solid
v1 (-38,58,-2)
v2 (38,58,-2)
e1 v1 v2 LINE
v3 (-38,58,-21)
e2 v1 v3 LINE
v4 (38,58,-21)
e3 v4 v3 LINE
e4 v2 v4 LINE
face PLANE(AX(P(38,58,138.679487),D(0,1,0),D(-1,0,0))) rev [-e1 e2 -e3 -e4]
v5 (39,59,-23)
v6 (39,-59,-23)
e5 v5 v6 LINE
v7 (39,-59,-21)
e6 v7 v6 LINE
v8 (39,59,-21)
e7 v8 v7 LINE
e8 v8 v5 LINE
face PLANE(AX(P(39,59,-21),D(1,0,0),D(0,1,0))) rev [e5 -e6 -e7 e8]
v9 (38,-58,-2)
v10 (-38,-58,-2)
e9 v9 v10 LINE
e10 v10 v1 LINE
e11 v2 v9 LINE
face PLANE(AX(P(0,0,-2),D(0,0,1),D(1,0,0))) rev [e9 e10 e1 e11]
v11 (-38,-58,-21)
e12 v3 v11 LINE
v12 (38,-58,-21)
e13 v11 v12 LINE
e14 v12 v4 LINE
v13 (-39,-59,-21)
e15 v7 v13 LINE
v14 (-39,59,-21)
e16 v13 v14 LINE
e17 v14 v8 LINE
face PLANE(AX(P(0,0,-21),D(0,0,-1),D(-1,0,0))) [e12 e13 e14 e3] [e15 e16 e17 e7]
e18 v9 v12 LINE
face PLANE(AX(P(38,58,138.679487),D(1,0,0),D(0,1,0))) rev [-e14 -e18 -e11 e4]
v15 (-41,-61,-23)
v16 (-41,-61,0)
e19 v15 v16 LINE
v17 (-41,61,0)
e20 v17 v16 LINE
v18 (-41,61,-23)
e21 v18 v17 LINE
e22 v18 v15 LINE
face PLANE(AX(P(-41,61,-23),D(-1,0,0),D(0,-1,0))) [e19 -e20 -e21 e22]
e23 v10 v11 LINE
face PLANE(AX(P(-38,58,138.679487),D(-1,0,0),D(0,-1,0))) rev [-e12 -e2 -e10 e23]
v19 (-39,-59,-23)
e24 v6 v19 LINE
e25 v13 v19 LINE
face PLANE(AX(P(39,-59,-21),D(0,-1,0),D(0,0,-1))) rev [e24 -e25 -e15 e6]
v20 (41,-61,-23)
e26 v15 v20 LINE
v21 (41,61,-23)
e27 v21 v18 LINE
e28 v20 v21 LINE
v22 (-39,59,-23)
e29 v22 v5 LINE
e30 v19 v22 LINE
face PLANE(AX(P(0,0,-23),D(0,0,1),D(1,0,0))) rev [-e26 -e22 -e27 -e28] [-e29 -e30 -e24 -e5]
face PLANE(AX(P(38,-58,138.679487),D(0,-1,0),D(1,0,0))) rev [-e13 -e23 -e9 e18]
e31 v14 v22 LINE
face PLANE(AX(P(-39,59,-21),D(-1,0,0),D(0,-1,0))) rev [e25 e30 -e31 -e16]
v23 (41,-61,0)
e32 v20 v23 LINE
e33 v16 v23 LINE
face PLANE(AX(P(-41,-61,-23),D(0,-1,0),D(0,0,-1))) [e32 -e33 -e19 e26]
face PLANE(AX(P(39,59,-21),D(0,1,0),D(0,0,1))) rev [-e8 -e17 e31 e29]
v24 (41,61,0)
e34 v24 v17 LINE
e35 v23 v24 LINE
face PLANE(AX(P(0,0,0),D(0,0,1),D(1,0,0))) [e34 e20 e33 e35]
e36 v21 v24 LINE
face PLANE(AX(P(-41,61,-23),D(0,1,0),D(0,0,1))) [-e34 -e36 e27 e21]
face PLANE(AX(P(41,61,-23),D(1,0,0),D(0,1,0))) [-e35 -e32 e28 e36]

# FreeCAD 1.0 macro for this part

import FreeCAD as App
import Part
import Sketcher
from FreeCAD import Vector
Q = App.Units.Quantity

doc = App.newDocument("Part")
body = doc.addObject("PartDesign::Body", "Body")

# Sketch on XY plane
sketch1 = doc.addObject("Sketcher::SketchObject", "Sketch")
body.addObject(sketch1)
sketch1.AttachmentSupport = (doc.XY_Plane, [""])
sketch1.MapMode = "FlatFace"
sketch1.addGeometry([
    Part.LineSegment(Vector(-41, 61, 0), Vector(-41, -61, 0)),
    Part.LineSegment(Vector(-41, -61, 0), Vector(41, -61, 0)),
    Part.LineSegment(Vector(41, -61, 0), Vector(41, 61, 0)),
    Part.LineSegment(Vector(41, 61, 0), Vector(-41, 61, 0)),
], False)
sketch1.addConstraint([
    Sketcher.Constraint("Coincident", 0, 2, 1, 1),
    Sketcher.Constraint("Coincident", 1, 2, 2, 1),
    Sketcher.Constraint("Coincident", 2, 2, 3, 1),
    Sketcher.Constraint("Coincident", 3, 2, 0, 1),
    Sketcher.Constraint("Vertical", 0),
    Sketcher.Constraint("Horizontal", 1),
    Sketcher.Constraint("Vertical", 2),
    Sketcher.Constraint("Horizontal", 3),
    Sketcher.Constraint("Symmetric", 0, 2, 2, 2, -1, 1),
    Sketcher.Constraint("DistanceX", 1, 1, 1, 2, Q("82 mm")),
    Sketcher.Constraint("DistanceY", 0, 2, 0, 1, Q("122 mm")),
])
pad1 = doc.addObject("PartDesign::Pad", "Pad")
body.addObject(pad1)
pad1.Profile = sketch1
pad1.Length = 23
pad1.Reversed = True

# Sketch on XY plane
sketch2 = doc.addObject("Sketcher::SketchObject", "Sketch001")
body.addObject(sketch2)
sketch2.AttachmentSupport = (doc.XY_Plane, [""])
sketch2.MapMode = "FlatFace"
sketch2.AttachmentOffset = App.Placement(Vector(0, 0, -23), App.Rotation())
sketch2.addGeometry([
    Part.LineSegment(Vector(38, 58, 0), Vector(38, -58, 0)),
    Part.LineSegment(Vector(38, -58, 0), Vector(-38, -58, 0)),
    Part.LineSegment(Vector(-38, -58, 0), Vector(-38, 58, 0)),
    Part.LineSegment(Vector(-38, 58, 0), Vector(38, 58, 0)),
], False)
sketch2.addConstraint([
    Sketcher.Constraint("Coincident", 0, 2, 1, 1),
    Sketcher.Constraint("Coincident", 1, 2, 2, 1),
    Sketcher.Constraint("Coincident", 2, 2, 3, 1),
    Sketcher.Constraint("Coincident", 3, 2, 0, 1),
    Sketcher.Constraint("Vertical", 0),
    Sketcher.Constraint("Horizontal", 1),
    Sketcher.Constraint("Vertical", 2),
    Sketcher.Constraint("Horizontal", 3),
    Sketcher.Constraint("Symmetric", 0, 2, 2, 2, -1, 1),
    Sketcher.Constraint("DistanceX", 1, 2, 1, 1, Q("76 mm")),
    Sketcher.Constraint("DistanceY", 0, 2, 0, 1, Q("116 mm")),
])
pocket1 = doc.addObject("PartDesign::Pocket", "Pocket")
body.addObject(pocket1)
pocket1.Profile = sketch2
pocket1.Length = 21
pocket1.Reversed = True

# Sketch on XY plane
sketch3 = doc.addObject("Sketcher::SketchObject", "Sketch002")
body.addObject(sketch3)
sketch3.AttachmentSupport = (doc.XY_Plane, [""])
sketch3.MapMode = "FlatFace"
sketch3.AttachmentOffset = App.Placement(Vector(0, 0, -23), App.Rotation())
sketch3.addGeometry([
    Part.LineSegment(Vector(39, 59, 0), Vector(39, -59, 0)),
    Part.LineSegment(Vector(39, -59, 0), Vector(-39, -59, 0)),
    Part.LineSegment(Vector(-39, -59, 0), Vector(-39, 59, 0)),
    Part.LineSegment(Vector(-39, 59, 0), Vector(39, 59, 0)),
], False)
sketch3.addConstraint([
    Sketcher.Constraint("Coincident", 0, 2, 1, 1),
    Sketcher.Constraint("Coincident", 1, 2, 2, 1),
    Sketcher.Constraint("Coincident", 2, 2, 3, 1),
    Sketcher.Constraint("Coincident", 3, 2, 0, 1),
    Sketcher.Constraint("Vertical", 0),
    Sketcher.Constraint("Horizontal", 1),
    Sketcher.Constraint("Vertical", 2),
    Sketcher.Constraint("Horizontal", 3),
    Sketcher.Constraint("Symmetric", 0, 2, 2, 2, -1, 1),
    Sketcher.Constraint("DistanceX", 1, 2, 1, 1, Q("78 mm")),
    Sketcher.Constraint("DistanceY", 0, 2, 0, 1, Q("118 mm")),
])
pocket2 = doc.addObject("PartDesign::Pocket", "Pocket001")
body.addObject(pocket2)
pocket2.Profile = sketch3
pocket2.Length = 2
pocket2.Reversed = True

doc.recompute()
